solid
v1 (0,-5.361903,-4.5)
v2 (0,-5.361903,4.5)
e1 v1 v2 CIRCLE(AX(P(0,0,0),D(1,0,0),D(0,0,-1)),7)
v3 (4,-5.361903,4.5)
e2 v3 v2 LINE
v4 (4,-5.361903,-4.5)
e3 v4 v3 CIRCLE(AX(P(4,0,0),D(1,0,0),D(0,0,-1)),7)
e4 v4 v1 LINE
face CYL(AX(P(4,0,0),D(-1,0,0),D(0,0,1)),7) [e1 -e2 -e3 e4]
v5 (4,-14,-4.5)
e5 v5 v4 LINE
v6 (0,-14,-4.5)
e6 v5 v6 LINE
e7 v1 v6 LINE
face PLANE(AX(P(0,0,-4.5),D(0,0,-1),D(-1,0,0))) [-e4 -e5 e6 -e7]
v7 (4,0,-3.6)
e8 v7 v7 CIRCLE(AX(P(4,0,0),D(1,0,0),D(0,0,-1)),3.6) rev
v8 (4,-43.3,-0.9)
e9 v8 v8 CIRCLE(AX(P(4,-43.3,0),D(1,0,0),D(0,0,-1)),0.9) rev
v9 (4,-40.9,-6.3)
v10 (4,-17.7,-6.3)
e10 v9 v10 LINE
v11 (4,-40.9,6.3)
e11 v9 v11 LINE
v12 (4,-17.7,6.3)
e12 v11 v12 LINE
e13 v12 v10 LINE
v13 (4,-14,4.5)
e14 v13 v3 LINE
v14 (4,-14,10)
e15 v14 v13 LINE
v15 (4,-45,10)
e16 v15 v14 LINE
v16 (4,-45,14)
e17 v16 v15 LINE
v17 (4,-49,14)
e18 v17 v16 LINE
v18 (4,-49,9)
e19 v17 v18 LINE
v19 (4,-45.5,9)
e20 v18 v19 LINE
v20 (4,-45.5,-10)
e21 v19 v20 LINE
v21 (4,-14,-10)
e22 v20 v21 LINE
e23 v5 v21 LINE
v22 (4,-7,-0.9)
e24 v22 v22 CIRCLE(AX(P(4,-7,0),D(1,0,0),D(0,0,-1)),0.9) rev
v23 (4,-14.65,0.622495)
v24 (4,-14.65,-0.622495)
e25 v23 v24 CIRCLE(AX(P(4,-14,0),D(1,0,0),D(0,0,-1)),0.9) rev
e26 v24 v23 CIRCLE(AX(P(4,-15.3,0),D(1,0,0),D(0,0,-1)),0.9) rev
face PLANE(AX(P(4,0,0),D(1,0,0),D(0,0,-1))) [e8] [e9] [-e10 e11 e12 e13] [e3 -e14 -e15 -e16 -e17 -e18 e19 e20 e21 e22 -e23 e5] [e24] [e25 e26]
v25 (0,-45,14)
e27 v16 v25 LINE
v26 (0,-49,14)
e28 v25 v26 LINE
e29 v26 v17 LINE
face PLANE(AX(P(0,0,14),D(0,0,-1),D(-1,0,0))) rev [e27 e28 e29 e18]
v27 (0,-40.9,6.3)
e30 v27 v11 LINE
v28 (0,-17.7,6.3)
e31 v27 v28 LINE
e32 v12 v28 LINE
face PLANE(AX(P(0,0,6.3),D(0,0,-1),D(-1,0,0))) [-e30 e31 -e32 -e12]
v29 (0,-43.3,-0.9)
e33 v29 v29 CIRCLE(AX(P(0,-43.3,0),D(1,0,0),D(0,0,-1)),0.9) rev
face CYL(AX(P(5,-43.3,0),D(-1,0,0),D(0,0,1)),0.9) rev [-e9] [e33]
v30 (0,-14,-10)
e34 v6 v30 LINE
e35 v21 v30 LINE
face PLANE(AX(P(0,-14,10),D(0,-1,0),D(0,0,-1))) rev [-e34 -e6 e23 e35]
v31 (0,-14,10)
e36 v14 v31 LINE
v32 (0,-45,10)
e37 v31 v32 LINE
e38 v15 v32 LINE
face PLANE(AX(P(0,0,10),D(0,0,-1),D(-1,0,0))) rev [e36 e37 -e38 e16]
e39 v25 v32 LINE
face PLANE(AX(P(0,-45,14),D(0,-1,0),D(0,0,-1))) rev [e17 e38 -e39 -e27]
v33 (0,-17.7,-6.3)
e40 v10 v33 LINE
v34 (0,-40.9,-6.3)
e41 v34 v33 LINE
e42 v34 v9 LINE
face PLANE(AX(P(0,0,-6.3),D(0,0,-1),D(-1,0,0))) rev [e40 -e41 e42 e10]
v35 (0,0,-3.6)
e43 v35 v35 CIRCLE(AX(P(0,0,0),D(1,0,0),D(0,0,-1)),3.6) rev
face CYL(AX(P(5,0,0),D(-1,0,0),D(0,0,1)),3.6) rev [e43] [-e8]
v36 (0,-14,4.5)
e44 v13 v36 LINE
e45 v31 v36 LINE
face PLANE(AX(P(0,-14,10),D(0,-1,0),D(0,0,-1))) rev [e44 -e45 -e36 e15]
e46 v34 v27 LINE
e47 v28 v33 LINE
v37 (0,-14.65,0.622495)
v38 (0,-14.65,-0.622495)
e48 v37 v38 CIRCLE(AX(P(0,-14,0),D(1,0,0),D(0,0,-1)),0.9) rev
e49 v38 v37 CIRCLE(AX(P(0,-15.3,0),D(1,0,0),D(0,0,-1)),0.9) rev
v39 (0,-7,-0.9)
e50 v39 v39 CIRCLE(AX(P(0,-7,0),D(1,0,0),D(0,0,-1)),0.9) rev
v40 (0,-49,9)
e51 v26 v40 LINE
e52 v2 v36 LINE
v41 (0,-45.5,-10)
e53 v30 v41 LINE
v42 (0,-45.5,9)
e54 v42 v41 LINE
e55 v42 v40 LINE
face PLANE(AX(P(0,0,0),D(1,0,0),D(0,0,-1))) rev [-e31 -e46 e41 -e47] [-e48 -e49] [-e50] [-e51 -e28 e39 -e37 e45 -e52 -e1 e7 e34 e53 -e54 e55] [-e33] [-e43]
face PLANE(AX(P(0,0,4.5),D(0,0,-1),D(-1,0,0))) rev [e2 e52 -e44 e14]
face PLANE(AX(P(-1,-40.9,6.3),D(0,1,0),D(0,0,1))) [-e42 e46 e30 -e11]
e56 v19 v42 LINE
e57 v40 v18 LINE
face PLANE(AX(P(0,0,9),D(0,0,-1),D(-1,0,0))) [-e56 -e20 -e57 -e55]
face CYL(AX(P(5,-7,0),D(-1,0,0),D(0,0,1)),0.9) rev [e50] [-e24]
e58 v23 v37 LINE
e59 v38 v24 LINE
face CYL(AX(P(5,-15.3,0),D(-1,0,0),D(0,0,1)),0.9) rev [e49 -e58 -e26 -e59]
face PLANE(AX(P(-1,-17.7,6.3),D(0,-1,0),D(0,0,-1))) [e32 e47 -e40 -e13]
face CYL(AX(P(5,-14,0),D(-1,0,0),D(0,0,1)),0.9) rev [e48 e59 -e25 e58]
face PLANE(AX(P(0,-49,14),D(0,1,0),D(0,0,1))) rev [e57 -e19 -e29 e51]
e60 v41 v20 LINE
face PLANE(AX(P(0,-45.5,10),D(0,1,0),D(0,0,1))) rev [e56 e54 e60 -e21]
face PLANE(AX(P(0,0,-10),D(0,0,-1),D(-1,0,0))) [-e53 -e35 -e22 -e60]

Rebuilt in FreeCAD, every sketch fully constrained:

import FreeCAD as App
import Part
import Sketcher

V = App.Vector


def add_polygon(sketch, points):
    """Adds a closed chain of lines whose ends are joined by coincident constraints."""
    first, n = sketch.GeometryCount, len(points)
    for a, b in zip(points, points[1:] + points[:1]):
        sketch.addGeometry(Part.LineSegment(App.Vector(*a, 0), App.Vector(*b, 0)), False)
    for i in range(n):
        sketch.addConstraint(Sketcher.Constraint("Coincident", first + i, 2, first + (i + 1) % n, 1))

doc = App.newDocument("Part")
params = doc.addObject("Spreadsheet::Sheet", "Params")
for row, (alias, value) in enumerate([
    ("sketch1_diameter", "14 mm"),
    ("pad1_length", "4 mm"),
    ("sketch2_width", "4 mm"),
    ("sketch2_height", "34 mm"),
    ("pad2_length", "9 mm"),
    ("sketch3_width", "4 mm"),
    ("sketch3_height", "31.5 mm"),
    ("pad3_length", "20 mm"),
    ("sketch4_width", "4 mm"),
    ("pad4_length", "5 mm"),
    ("sketch5_diameter", "7.2 mm"),
    ("pad5_length", "6 mm"),
    ("sketch6_diameter", "1.8 mm"),
    ("pad6_length", "6 mm"),
    ("sketch7_diameter", "1.8 mm"),
    ("pad7_length", "6 mm"),
    ("sketch8_width", "6 mm"),
    ("sketch8_height", "23.2 mm"),
    ("pad8_length", "12.6 mm"),
    ("sketch9_diameter", "1.8 mm"),
    ("pad9_length", "6 mm"),
    ("sketch10_diameter", "1.8 mm"),
    ("pad10_length", "6 mm"),
], start=1):
    params.set(f"A{row}", alias)
    params.set(f"B{row}", "=" + value)
    params.setAlias(f"B{row}", alias)

body = doc.addObject("PartDesign::Body", "Body")

sketch1 = doc.addObject("Sketcher::SketchObject", "Sketch")
body.addObject(sketch1)
sketch1.AttachmentSupport = (doc.YZ_Plane, [""])
sketch1.MapMode = "FlatFace"
sketch1.addGeometry(Part.Circle(V(0, 0, 0), V(0, 0, 1), 7), False)
sketch1.addConstraint(Sketcher.Constraint("Coincident", 0, 3, -1, 1))
sketch1.addConstraint(Sketcher.Constraint("Diameter", 0, 14.0))
sketch1.setExpression("Constraints[1]", "Params.sketch1_diameter")
pad1 = doc.addObject("PartDesign::Pad", "Pad")
body.addObject(pad1)
pad1.Profile = sketch1
pad1.setExpression("Length", "Params.pad1_length")

sketch2 = doc.addObject("Sketcher::SketchObject", "Sketch001")
body.addObject(sketch2)
sketch2.AttachmentSupport = (doc.XY_Plane, [""])
sketch2.MapMode = "FlatFace"
sketch2.AttachmentOffset = App.Placement(V(0, 0, -4.5), App.Rotation())
add_polygon(sketch2, [(0, 0), (0, -34), (4, -34), (4, 0)])
sketch2.addConstraint(Sketcher.Constraint("Vertical", 0))
sketch2.addConstraint(Sketcher.Constraint("Horizontal", 1))
sketch2.addConstraint(Sketcher.Constraint("Vertical", 2))
sketch2.addConstraint(Sketcher.Constraint("Horizontal", 3))
sketch2.addConstraint(Sketcher.Constraint("Coincident", 3, 2, -1, 1))
sketch2.addConstraint(Sketcher.Constraint("DistanceX", 1, 1, 1, 2, 4.0))
sketch2.addConstraint(Sketcher.Constraint("DistanceY", 0, 2, 0, 1, 34.0))
sketch2.setExpression("Constraints[9]", "Params.sketch2_width")
sketch2.setExpression("Constraints[10]", "Params.sketch2_height")
pad2 = doc.addObject("PartDesign::Pad", "Pad001")
body.addObject(pad2)
pad2.Profile = sketch2
pad2.setExpression("Length", "Params.pad2_length")

sketch3 = doc.addObject("Sketcher::SketchObject", "Sketch002")
body.addObject(sketch3)
sketch3.AttachmentSupport = (doc.XY_Plane, [""])
sketch3.MapMode = "FlatFace"
sketch3.AttachmentOffset = App.Placement(V(0, 0, -10), App.Rotation())
add_polygon(sketch3, [(0, -14), (0, -45.5), (4, -45.5), (4, -14)])
sketch3.addConstraint(Sketcher.Constraint("Vertical", 0))
sketch3.addConstraint(Sketcher.Constraint("Horizontal", 1))
sketch3.addConstraint(Sketcher.Constraint("Vertical", 2))
sketch3.addConstraint(Sketcher.Constraint("Horizontal", 3))
sketch3.addConstraint(Sketcher.Constraint("PointOnObject", 0, 2, -2))
sketch3.addConstraint(Sketcher.Constraint("DistanceX", 1, 1, 1, 2, 4.0))
sketch3.addConstraint(Sketcher.Constraint("DistanceY", 0, 2, 0, 1, 31.5))
sketch3.addConstraint(Sketcher.Constraint("DistanceY", 2, 2, -1, 1, 14.0))
sketch3.setExpression("Constraints[9]", "Params.sketch3_width")
sketch3.setExpression("Constraints[10]", "Params.sketch3_height")
pad3 = doc.addObject("PartDesign::Pad", "Pad002")
body.addObject(pad3)
pad3.Profile = sketch3
pad3.setExpression("Length", "Params.pad3_length")

sketch4 = doc.addObject("Sketcher::SketchObject", "Sketch003")
body.addObject(sketch4)
sketch4.AttachmentSupport = (doc.XY_Plane, [""])
sketch4.MapMode = "FlatFace"
sketch4.AttachmentOffset = App.Placement(V(0, 0, 9), App.Rotation())
add_polygon(sketch4, [(0, -45), (0, -49), (4, -49), (4, -45)])
sketch4.addConstraint(Sketcher.Constraint("Vertical", 0))
sketch4.addConstraint(Sketcher.Constraint("Horizontal", 1))
sketch4.addConstraint(Sketcher.Constraint("Vertical", 2))
sketch4.addConstraint(Sketcher.Constraint("Horizontal", 3))
sketch4.addConstraint(Sketcher.Constraint("PointOnObject", 0, 2, -2))
sketch4.addConstraint(Sketcher.Constraint("Equal", 3, 0))
sketch4.addConstraint(Sketcher.Constraint("DistanceX", 1, 1, 1, 2, 4.0))
sketch4.addConstraint(Sketcher.Constraint("DistanceY", 0, 2, -1, 1, 49.0))
sketch4.setExpression("Constraints[10]", "Params.sketch4_width")
pad4 = doc.addObject("PartDesign::Pad", "Pad003")
body.addObject(pad4)
pad4.Profile = sketch4
pad4.setExpression("Length", "Params.pad4_length")
body2 = doc.addObject("PartDesign::Body", "Body001")

sketch5 = doc.addObject("Sketcher::SketchObject", "Sketch004")
body2.addObject(sketch5)
sketch5.AttachmentSupport = (doc.getObject("YZ_Plane001"), [""])
sketch5.MapMode = "FlatFace"
sketch5.AttachmentOffset = App.Placement(V(0, 0, -1), App.Rotation())
sketch5.addGeometry(Part.Circle(V(0, 0, 0), V(0, 0, 1), 3.6), False)
sketch5.addConstraint(Sketcher.Constraint("Coincident", 0, 3, -1, 1))
sketch5.addConstraint(Sketcher.Constraint("Diameter", 0, 7.2))
sketch5.setExpression("Constraints[1]", "Params.sketch5_diameter")
pad5 = doc.addObject("PartDesign::Pad", "Pad004")
body2.addObject(pad5)
pad5.Profile = sketch5
pad5.setExpression("Length", "Params.pad5_length")
doc.recompute()

boolean = doc.addObject("PartDesign::Boolean", "Boolean")
body.addObject(boolean)
boolean.Type = "Cut"
boolean.addObjects([body2])
body3 = doc.addObject("PartDesign::Body", "Body002")

sketch6 = doc.addObject("Sketcher::SketchObject", "Sketch005")
body3.addObject(sketch6)
sketch6.AttachmentSupport = (doc.getObject("YZ_Plane002"), [""])
sketch6.MapMode = "FlatFace"
sketch6.AttachmentOffset = App.Placement(V(0, 0, -1), App.Rotation())
sketch6.addGeometry(Part.Circle(V(-7, 0, 0), V(0, 0, 1), 0.9), False)
sketch6.addConstraint(Sketcher.Constraint("PointOnObject", 0, 3, -1))
sketch6.addConstraint(Sketcher.Constraint("Diameter", 0, 1.8))
sketch6.addConstraint(Sketcher.Constraint("DistanceX", 0, 3, -1, 1, 7.0))
sketch6.setExpression("Constraints[1]", "Params.sketch6_diameter")
pad6 = doc.addObject("PartDesign::Pad", "Pad005")
body3.addObject(pad6)
pad6.Profile = sketch6
pad6.setExpression("Length", "Params.pad6_length")
doc.recompute()

boolean2 = doc.addObject("PartDesign::Boolean", "Boolean001")
body.addObject(boolean2)
boolean2.Type = "Cut"
boolean2.addObjects([body3])
body4 = doc.addObject("PartDesign::Body", "Body003")

sketch7 = doc.addObject("Sketcher::SketchObject", "Sketch006")
body4.addObject(sketch7)
sketch7.AttachmentSupport = (doc.getObject("YZ_Plane003"), [""])
sketch7.MapMode = "FlatFace"
sketch7.AttachmentOffset = App.Placement(V(0, 0, -1), App.Rotation())
sketch7.addGeometry(Part.Circle(V(-14, 0, 0), V(0, 0, 1), 0.9), False)
sketch7.addConstraint(Sketcher.Constraint("PointOnObject", 0, 3, -1))
sketch7.addConstraint(Sketcher.Constraint("Diameter", 0, 1.8))
sketch7.addConstraint(Sketcher.Constraint("DistanceX", 0, 3, -1, 1, 14.0))
sketch7.setExpression("Constraints[1]", "Params.sketch7_diameter")
pad7 = doc.addObject("PartDesign::Pad", "Pad006")
body4.addObject(pad7)
pad7.Profile = sketch7
pad7.setExpression("Length", "Params.pad7_length")
doc.recompute()

boolean3 = doc.addObject("PartDesign::Boolean", "Boolean002")
body.addObject(boolean3)
boolean3.Type = "Cut"
boolean3.addObjects([body4])
body5 = doc.addObject("PartDesign::Body", "Body004")

sketch8 = doc.addObject("Sketcher::SketchObject", "Sketch007")
body5.addObject(sketch8)
sketch8.AttachmentSupport = (doc.getObject("XY_Plane004"), [""])
sketch8.MapMode = "FlatFace"
sketch8.AttachmentOffset = App.Placement(V(0, 0, -6.3), App.Rotation())
add_polygon(sketch8, [(-1, -17.7), (-1, -40.9), (5, -40.9), (5, -17.7)])
sketch8.addConstraint(Sketcher.Constraint("Vertical", 0))
sketch8.addConstraint(Sketcher.Constraint("Horizontal", 1))
sketch8.addConstraint(Sketcher.Constraint("Vertical", 2))
sketch8.addConstraint(Sketcher.Constraint("Horizontal", 3))
sketch8.addConstraint(Sketcher.Constraint("DistanceX", 1, 1, 1, 2, 6.0))
sketch8.addConstraint(Sketcher.Constraint("DistanceY", 0, 2, 0, 1, 23.2))
sketch8.addConstraint(Sketcher.Constraint("DistanceX", 0, 2, -1, 1, 1.0))
sketch8.addConstraint(Sketcher.Constraint("DistanceY", 0, 2, -1, 1, 40.9))
sketch8.setExpression("Constraints[8]", "Params.sketch8_width")
sketch8.setExpression("Constraints[9]", "Params.sketch8_height")
pad8 = doc.addObject("PartDesign::Pad", "Pad007")
body5.addObject(pad8)
pad8.Profile = sketch8
pad8.setExpression("Length", "Params.pad8_length")
doc.recompute()

boolean4 = doc.addObject("PartDesign::Boolean", "Boolean003")
body.addObject(boolean4)
boolean4.Type = "Cut"
boolean4.addObjects([body5])
body6 = doc.addObject("PartDesign::Body", "Body005")

sketch9 = doc.addObject("Sketcher::SketchObject", "Sketch008")
body6.addObject(sketch9)
sketch9.AttachmentSupport = (doc.getObject("YZ_Plane005"), [""])
sketch9.MapMode = "FlatFace"
sketch9.AttachmentOffset = App.Placement(V(0, 0, -1), App.Rotation())
sketch9.addGeometry(Part.Circle(V(-43.3, 0, 0), V(0, 0, 1), 0.9), False)
sketch9.addConstraint(Sketcher.Constraint("PointOnObject", 0, 3, -1))
sketch9.addConstraint(Sketcher.Constraint("Diameter", 0, 1.8))
sketch9.addConstraint(Sketcher.Constraint("DistanceX", 0, 3, -1, 1, 43.3))
sketch9.setExpression("Constraints[1]", "Params.sketch9_diameter")
pad9 = doc.addObject("PartDesign::Pad", "Pad008")
body6.addObject(pad9)
pad9.Profile = sketch9
pad9.setExpression("Length", "Params.pad9_length")
doc.recompute()

boolean5 = doc.addObject("PartDesign::Boolean", "Boolean004")
body.addObject(boolean5)
boolean5.Type = "Cut"
boolean5.addObjects([body6])
body7 = doc.addObject("PartDesign::Body", "Body006")

sketch10 = doc.addObject("Sketcher::SketchObject", "Sketch009")
body7.addObject(sketch10)
sketch10.AttachmentSupport = (doc.getObject("YZ_Plane006"), [""])
sketch10.MapMode = "FlatFace"
sketch10.AttachmentOffset = App.Placement(V(0, 0, -1), App.Rotation())
sketch10.addGeometry(Part.Circle(V(-15.3, 0, 0), V(0, 0, 1), 0.9), False)
sketch10.addConstraint(Sketcher.Constraint("PointOnObject", 0, 3, -1))
sketch10.addConstraint(Sketcher.Constraint("Diameter", 0, 1.8))
sketch10.addConstraint(Sketcher.Constraint("DistanceX", 0, 3, -1, 1, 15.3))
sketch10.setExpression("Constraints[1]", "Params.sketch10_diameter")
pad10 = doc.addObject("PartDesign::Pad", "Pad009")
body7.addObject(pad10)
pad10.Profile = sketch10
pad10.setExpression("Length", "Params.pad10_length")
doc.recompute()

boolean6 = doc.addObject("PartDesign::Boolean", "Boolean005")
body.addObject(boolean6)
boolean6.Type = "Cut"
boolean6.addObjects([body7])

doc.recompute()
